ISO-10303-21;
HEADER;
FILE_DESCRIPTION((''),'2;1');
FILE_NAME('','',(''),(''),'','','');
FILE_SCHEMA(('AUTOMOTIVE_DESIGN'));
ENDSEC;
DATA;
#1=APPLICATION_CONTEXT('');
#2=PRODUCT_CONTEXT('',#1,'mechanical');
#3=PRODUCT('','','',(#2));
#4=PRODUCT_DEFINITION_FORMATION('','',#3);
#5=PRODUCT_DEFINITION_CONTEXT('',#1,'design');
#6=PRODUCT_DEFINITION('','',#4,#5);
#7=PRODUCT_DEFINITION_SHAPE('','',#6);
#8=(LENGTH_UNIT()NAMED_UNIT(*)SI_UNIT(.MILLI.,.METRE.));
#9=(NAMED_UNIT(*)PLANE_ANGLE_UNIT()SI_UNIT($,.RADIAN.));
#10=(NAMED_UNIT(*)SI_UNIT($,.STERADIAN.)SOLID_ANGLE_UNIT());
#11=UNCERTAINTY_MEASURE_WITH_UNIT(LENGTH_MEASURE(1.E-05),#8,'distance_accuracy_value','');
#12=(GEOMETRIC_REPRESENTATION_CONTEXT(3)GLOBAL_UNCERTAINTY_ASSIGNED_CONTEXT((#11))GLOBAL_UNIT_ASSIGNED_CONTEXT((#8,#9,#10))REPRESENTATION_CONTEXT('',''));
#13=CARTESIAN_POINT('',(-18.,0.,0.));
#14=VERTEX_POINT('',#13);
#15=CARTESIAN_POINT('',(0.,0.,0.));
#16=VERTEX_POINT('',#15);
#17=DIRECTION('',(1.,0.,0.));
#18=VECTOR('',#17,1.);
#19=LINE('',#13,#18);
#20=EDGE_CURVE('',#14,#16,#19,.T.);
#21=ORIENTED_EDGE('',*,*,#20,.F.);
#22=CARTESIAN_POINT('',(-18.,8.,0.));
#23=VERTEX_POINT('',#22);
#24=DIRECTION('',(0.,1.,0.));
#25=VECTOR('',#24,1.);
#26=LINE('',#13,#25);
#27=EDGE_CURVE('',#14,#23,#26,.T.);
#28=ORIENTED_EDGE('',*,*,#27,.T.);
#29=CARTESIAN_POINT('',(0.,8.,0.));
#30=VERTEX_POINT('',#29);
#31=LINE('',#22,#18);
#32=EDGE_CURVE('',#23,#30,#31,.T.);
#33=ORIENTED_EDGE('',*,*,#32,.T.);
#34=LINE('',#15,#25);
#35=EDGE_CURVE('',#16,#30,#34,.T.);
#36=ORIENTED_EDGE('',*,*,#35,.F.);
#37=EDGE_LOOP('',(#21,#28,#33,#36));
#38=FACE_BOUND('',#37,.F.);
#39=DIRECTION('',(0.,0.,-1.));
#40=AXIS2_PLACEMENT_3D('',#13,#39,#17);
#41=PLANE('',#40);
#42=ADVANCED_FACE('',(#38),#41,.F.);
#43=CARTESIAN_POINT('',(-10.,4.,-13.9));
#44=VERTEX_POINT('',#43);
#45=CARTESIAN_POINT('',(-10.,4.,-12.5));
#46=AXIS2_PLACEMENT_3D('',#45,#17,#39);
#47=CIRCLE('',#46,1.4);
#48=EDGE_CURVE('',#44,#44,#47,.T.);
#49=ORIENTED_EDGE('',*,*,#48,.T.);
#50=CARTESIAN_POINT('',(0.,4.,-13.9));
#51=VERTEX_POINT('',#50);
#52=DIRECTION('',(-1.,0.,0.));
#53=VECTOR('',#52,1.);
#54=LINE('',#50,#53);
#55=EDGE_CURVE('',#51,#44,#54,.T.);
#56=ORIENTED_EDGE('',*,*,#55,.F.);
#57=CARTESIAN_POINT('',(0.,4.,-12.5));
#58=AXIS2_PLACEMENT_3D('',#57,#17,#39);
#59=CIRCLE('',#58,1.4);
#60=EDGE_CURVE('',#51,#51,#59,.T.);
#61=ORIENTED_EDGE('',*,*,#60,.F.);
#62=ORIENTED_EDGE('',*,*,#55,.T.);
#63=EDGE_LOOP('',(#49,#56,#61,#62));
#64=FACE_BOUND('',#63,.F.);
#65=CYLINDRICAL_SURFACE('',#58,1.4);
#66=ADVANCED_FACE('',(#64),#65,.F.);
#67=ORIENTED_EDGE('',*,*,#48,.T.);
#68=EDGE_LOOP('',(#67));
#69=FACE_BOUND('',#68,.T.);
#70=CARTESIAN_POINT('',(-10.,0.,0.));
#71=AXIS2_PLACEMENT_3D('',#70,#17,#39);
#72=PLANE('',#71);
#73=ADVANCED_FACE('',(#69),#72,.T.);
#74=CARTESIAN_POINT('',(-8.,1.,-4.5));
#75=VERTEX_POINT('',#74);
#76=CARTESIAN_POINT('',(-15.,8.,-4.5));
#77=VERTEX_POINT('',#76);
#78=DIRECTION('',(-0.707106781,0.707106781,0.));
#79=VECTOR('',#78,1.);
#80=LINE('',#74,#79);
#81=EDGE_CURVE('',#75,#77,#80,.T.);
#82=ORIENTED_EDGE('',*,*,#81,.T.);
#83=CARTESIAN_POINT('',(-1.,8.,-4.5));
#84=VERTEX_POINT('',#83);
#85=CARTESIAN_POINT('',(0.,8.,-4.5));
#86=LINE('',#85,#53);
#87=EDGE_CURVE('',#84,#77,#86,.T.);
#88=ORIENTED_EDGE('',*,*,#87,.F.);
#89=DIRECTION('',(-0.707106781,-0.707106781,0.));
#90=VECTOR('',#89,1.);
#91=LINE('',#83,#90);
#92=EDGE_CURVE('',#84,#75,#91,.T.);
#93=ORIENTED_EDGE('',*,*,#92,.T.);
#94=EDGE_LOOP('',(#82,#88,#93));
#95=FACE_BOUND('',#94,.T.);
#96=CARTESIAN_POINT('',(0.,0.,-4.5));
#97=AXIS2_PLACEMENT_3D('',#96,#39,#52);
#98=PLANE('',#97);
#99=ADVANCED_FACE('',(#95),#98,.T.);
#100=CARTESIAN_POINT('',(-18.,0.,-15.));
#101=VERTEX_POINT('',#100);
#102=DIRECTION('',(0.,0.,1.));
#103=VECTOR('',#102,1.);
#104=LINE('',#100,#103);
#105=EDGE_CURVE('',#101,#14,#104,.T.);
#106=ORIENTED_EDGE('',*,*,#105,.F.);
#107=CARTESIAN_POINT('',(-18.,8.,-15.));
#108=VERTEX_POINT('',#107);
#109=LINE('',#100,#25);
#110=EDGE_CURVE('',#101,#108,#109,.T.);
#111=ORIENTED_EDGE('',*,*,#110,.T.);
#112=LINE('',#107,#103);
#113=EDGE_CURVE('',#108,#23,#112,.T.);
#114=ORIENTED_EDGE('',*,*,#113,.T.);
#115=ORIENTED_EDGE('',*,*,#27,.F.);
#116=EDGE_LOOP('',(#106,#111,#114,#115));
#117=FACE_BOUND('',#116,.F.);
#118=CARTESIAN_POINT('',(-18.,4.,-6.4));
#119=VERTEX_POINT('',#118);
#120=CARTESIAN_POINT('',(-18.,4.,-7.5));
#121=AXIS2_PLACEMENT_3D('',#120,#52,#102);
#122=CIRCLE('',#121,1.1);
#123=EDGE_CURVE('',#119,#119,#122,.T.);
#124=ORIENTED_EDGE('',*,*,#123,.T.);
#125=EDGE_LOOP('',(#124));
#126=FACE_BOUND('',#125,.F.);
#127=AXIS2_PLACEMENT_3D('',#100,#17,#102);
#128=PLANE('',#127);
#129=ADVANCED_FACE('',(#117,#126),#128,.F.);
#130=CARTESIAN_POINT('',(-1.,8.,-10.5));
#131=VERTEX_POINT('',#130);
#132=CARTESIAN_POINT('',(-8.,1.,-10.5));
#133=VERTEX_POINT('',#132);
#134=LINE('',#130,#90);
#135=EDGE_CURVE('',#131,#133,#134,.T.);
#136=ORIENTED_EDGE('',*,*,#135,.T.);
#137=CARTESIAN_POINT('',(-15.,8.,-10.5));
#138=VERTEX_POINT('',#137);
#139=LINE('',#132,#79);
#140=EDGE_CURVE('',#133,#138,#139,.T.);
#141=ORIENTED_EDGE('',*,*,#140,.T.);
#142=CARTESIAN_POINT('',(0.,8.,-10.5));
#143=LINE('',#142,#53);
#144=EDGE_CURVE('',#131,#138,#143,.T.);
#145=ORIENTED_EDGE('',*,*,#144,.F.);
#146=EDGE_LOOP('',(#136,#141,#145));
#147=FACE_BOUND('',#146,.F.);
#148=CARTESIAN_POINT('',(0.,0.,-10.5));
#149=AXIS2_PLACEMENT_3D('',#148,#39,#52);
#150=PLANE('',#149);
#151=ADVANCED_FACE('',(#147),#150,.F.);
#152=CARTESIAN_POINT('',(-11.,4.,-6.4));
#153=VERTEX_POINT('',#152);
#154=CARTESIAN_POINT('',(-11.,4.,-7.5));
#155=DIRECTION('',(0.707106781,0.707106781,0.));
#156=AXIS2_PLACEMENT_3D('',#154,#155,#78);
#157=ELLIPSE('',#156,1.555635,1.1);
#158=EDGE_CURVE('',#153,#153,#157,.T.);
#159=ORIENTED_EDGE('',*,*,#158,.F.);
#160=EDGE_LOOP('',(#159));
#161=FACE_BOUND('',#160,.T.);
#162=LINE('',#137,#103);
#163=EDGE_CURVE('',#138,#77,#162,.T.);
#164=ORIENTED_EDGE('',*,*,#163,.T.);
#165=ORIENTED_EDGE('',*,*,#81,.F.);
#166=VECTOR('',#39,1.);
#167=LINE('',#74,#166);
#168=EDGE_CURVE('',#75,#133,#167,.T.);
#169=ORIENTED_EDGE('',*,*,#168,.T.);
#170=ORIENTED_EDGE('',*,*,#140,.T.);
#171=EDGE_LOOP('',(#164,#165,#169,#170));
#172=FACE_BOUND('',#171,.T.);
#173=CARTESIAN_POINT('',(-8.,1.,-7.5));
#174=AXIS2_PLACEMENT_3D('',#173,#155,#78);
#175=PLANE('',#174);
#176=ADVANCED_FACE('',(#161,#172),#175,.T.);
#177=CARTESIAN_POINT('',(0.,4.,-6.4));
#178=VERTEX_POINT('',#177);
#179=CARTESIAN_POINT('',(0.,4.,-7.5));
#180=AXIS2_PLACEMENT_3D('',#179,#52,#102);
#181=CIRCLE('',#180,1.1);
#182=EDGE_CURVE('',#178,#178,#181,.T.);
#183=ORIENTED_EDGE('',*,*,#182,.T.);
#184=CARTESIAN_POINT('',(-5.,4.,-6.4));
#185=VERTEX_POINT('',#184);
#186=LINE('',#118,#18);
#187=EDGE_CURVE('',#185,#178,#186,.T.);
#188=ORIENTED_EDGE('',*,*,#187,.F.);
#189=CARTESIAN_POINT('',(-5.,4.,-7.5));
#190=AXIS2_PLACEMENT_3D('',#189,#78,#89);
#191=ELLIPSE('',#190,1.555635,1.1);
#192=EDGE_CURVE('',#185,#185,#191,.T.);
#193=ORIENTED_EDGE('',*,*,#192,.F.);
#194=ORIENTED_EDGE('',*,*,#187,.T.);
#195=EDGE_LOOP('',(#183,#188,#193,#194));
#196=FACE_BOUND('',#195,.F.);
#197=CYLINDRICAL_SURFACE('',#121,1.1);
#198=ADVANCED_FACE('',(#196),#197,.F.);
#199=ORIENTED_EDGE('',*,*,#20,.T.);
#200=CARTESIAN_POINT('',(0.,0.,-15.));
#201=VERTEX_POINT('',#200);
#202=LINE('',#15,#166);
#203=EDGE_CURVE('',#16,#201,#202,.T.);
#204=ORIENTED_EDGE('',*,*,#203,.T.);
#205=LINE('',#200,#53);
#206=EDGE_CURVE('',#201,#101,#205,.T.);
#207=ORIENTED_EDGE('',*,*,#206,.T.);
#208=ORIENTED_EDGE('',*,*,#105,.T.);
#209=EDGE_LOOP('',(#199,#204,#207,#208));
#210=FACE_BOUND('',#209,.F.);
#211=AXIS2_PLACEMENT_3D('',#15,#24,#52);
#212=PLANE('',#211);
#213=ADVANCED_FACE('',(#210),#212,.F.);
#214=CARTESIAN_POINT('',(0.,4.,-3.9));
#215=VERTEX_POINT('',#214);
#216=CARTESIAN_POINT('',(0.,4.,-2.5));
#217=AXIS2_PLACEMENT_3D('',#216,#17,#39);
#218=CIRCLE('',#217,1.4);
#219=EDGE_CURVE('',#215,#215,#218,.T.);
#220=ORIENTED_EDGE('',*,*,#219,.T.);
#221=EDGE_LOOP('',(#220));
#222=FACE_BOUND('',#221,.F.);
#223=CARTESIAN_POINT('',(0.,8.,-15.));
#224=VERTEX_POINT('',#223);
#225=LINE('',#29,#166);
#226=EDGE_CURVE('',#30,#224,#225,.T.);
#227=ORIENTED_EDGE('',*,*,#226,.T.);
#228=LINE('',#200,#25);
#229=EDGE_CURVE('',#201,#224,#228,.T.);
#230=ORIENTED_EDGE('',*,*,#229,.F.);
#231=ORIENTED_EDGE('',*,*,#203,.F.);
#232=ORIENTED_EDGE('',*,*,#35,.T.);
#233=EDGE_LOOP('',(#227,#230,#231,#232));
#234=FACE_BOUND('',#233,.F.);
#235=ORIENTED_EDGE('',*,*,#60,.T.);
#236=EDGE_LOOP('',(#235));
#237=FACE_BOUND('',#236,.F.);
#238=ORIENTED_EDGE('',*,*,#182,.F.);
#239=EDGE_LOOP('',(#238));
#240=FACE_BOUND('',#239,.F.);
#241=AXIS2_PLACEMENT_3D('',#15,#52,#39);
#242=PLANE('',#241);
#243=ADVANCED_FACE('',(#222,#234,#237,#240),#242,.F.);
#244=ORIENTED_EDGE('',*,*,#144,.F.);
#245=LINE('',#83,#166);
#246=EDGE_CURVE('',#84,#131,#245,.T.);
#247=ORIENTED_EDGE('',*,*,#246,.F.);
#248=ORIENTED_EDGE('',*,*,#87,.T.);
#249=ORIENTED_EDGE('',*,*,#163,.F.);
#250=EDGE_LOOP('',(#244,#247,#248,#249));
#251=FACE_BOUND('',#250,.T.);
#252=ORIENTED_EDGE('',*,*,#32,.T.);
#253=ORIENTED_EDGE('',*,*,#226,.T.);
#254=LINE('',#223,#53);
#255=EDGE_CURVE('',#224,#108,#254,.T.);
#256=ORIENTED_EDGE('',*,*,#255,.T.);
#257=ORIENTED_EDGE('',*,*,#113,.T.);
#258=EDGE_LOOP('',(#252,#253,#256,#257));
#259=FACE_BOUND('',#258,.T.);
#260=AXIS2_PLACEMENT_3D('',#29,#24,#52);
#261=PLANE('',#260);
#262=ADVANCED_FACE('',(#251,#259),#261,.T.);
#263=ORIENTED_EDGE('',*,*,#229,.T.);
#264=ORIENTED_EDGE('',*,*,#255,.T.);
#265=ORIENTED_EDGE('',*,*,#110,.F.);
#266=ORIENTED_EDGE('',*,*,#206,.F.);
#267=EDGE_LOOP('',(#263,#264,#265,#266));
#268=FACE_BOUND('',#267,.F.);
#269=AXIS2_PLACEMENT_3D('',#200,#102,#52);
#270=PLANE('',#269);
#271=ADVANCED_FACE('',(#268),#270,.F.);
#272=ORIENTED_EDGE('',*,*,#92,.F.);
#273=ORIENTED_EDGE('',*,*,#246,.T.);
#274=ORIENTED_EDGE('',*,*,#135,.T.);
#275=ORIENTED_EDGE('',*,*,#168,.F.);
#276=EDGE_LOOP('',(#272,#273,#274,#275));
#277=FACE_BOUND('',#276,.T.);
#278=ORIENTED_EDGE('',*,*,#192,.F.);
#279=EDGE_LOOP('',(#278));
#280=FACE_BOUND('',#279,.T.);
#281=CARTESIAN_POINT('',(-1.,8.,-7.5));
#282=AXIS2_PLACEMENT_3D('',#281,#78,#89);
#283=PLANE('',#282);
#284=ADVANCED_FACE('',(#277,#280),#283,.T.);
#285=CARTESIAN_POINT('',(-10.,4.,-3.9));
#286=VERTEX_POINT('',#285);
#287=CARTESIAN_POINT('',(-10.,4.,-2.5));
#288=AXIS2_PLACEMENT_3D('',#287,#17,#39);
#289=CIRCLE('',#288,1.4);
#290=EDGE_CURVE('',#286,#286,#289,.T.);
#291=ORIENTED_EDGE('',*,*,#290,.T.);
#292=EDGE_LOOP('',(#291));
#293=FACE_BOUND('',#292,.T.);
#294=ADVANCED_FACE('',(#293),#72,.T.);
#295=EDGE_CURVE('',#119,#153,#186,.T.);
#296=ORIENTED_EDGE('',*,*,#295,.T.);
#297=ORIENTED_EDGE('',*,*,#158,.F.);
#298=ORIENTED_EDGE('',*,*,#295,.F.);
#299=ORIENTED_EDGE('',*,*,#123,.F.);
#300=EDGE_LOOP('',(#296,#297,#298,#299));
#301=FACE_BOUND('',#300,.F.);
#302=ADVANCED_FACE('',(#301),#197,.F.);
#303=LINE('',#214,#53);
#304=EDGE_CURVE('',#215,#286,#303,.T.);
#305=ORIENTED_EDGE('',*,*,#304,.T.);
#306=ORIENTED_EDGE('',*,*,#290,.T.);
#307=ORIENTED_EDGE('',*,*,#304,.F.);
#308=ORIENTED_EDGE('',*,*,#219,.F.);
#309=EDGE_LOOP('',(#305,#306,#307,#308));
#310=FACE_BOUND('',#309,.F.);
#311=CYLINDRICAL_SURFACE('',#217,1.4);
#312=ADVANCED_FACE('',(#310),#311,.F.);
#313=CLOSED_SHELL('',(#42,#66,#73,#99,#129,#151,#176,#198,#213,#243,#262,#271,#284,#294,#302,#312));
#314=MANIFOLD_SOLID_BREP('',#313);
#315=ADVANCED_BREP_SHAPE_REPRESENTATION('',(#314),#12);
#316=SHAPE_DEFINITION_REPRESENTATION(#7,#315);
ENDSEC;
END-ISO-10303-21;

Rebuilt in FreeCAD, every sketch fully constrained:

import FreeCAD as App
import Part
import Sketcher
Q = App.Units.Quantity

doc = App.newDocument("Part")
body = doc.addObject("PartDesign::Body", "Body")

sketch1 = doc.addObject("Sketcher::SketchObject", "Sketch")
body.addObject(sketch1)
sketch1.AttachmentSupport = (doc.XZ_Plane, [""])
sketch1.MapMode = "FlatFace"
sketch1.addGeometry([
    Part.LineSegment(App.Vector(-18, 0, 0), App.Vector(0, 0, 0)),
    Part.LineSegment(App.Vector(0, 0, 0), App.Vector(0, -15, 0)),
    Part.LineSegment(App.Vector(0, -15, 0), App.Vector(-18, -15, 0)),
    Part.LineSegment(App.Vector(-18, -15, 0), App.Vector(-18, 0, 0)),
], False)
sketch1.addConstraint([
    Sketcher.Constraint("Coincident", 0, 2, 1, 1),
    Sketcher.Constraint("Coincident", 1, 2, 2, 1),
    Sketcher.Constraint("Coincident", 2, 2, 3, 1),
    Sketcher.Constraint("Coincident", 3, 2, 0, 1),
    Sketcher.Constraint("Horizontal", 0),
    Sketcher.Constraint("Vertical", 1),
    Sketcher.Constraint("Horizontal", 2),
    Sketcher.Constraint("Vertical", 3),
    Sketcher.Constraint("Coincident", 0, 2, -1, 1),
    Sketcher.Constraint("DistanceX", 0, 1, 0, 2, Q("18 mm")),
    Sketcher.Constraint("DistanceY", 1, 2, 1, 1, Q("15 mm")),
])
pad1 = doc.addObject("PartDesign::Pad", "Pad")
body.addObject(pad1)
pad1.Profile = sketch1
pad1.Length = 8
pad1.Reversed = True

sketch2 = doc.addObject("Sketcher::SketchObject", "Sketch001")
body.addObject(sketch2)
sketch2.AttachmentSupport = (doc.YZ_Plane, [""])
sketch2.MapMode = "FlatFace"
sketch2.addGeometry([
    Part.Circle(App.Vector(4, -12.5, 0), App.Vector(0, 0, 1), 1.4),
    Part.Circle(App.Vector(4, -2.5, 0), App.Vector(0, 0, 1), 1.4),
], False)
sketch2.addConstraint([
    Sketcher.Constraint("Equal", 0, 1),
    Sketcher.Constraint("Vertical", 0, 3, 1, 3),
    Sketcher.Constraint("Diameter", 0, Q("2.8 mm")),
    Sketcher.Constraint("DistanceY", 0, 3, 1, 3, Q("10 mm")),
    Sketcher.Constraint("DistanceX", -1, 1, 0, 3, Q("4 mm")),
    Sketcher.Constraint("DistanceY", 0, 3, -1, 1, Q("12.5 mm")),
])
pocket1 = doc.addObject("PartDesign::Pocket", "Pocket")
body.addObject(pocket1)
pocket1.Profile = sketch2
pocket1.Length = 10

sketch3 = doc.addObject("Sketcher::SketchObject", "Sketch002")
body.addObject(sketch3)
sketch3.AttachmentSupport = (doc.YZ_Plane, [""])
sketch3.MapMode = "FlatFace"
sketch3.AttachmentOffset = App.Placement(App.Vector(0, 0, -18), App.Rotation())
sketch3.addGeometry(Part.Circle(App.Vector(4, -7.5, 0), App.Vector(0, 0, 1), 1.1), False)
sketch3.addConstraint([
    Sketcher.Constraint("Diameter", 0, Q("2.2 mm")),
    Sketcher.Constraint("DistanceX", -1, 1, 0, 3, Q("4 mm")),
    Sketcher.Constraint("DistanceY", 0, 3, -1, 1, Q("7.5 mm")),
])
pocket2 = doc.addObject("PartDesign::Pocket", "Pocket001")
body.addObject(pocket2)
pocket2.Profile = sketch3
pocket2.Type = "ThroughAll"
pocket2.Reversed = True

sketch4 = doc.addObject("Sketcher::SketchObject", "Sketch003")
body.addObject(sketch4)
sketch4.AttachmentSupport = (doc.XY_Plane, [""])
sketch4.MapMode = "FlatFace"
sketch4.AttachmentOffset = App.Placement(App.Vector(0, 0, -7.5), App.Rotation())
sketch4.addGeometry([
    Part.LineSegment(App.Vector(-15, 8, 0), App.Vector(-1, 8, 0)),
    Part.LineSegment(App.Vector(-1, 8, 0), App.Vector(-8, 1, 0)),
    Part.LineSegment(App.Vector(-8, 1, 0), App.Vector(-15, 8, 0)),
], False)
sketch4.addConstraint([
    Sketcher.Constraint("Coincident", 0, 2, 1, 1),
    Sketcher.Constraint("Coincident", 1, 2, 2, 1),
    Sketcher.Constraint("Coincident", 2, 2, 0, 1),
    Sketcher.Constraint("Horizontal", 0),
    Sketcher.Constraint("Perpendicular", 1, 2),
    Sketcher.Constraint("Equal", 1, 2),
    Sketcher.Constraint("DistanceY", -1, 1, 0, 2, Q("8 mm")),
    Sketcher.Constraint("DistanceX", 1, 2, -1, 1, Q("8 mm")),
    Sketcher.Constraint("DistanceX", 1, 2, 0, 2, Q("7 mm")),
])
pocket3 = doc.addObject("PartDesign::Pocket", "Pocket002")
body.addObject(pocket3)
pocket3.Profile = sketch4
pocket3.Length = 6
pocket3.Midplane = True

doc.recompute()
